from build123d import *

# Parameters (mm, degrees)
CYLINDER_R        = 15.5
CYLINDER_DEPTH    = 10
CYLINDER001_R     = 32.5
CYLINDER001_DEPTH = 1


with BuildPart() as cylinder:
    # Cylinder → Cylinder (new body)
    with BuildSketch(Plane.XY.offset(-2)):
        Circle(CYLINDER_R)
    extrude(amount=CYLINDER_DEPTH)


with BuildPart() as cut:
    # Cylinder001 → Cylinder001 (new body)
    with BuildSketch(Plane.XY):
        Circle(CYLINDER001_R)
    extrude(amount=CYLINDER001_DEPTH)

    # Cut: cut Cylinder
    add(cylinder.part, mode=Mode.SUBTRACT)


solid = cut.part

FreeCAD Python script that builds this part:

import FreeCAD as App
import Part
import Sketcher

V = App.Vector

doc = App.newDocument("Part")
body = doc.addObject("PartDesign::Body", "Body")

# Sketch on XY plane
sketch1 = doc.addObject("Sketcher::SketchObject", "Sketch")
body.addObject(sketch1)
sketch1.AttachmentSupport = (doc.XY_Plane, [""])
sketch1.MapMode = "FlatFace"
sketch1.AttachmentOffset = App.Placement(V(0, 0, -2), App.Rotation())
sketch1.addGeometry(Part.Circle(V(0, 0, 0), V(0, 0, 1), 15.5), False)
sketch1.addConstraint([
    Sketcher.Constraint("Coincident", 0, 3, -1, 1),
    Sketcher.Constraint("Diameter", 0, 31.0),
])
pad1 = doc.addObject("PartDesign::Pad", "Pad")
body.addObject(pad1)
pad1.Profile = sketch1
pad1.Length = 10
body2 = doc.addObject("PartDesign::Body", "Body001")

# Sketch on XY plane
sketch2 = doc.addObject("Sketcher::SketchObject", "Sketch001")
body2.addObject(sketch2)
sketch2.AttachmentSupport = (doc.getObject("XY_Plane001"), [""])
sketch2.MapMode = "FlatFace"
sketch2.addGeometry(Part.Circle(V(0, 0, 0), V(0, 0, 1), 32.5), False)
sketch2.addConstraint([
    Sketcher.Constraint("Coincident", 0, 3, -1, 1),
    Sketcher.Constraint("Diameter", 0, 65.0),
])
pad2 = doc.addObject("PartDesign::Pad", "Pad001")
body2.addObject(pad2)
pad2.Profile = sketch2
pad2.Length = 1
doc.recompute()

boolean = doc.addObject("PartDesign::Boolean", "Boolean")
body2.addObject(boolean)
boolean.Type = "Cut"
boolean.addObjects([body])

doc.recompute()
